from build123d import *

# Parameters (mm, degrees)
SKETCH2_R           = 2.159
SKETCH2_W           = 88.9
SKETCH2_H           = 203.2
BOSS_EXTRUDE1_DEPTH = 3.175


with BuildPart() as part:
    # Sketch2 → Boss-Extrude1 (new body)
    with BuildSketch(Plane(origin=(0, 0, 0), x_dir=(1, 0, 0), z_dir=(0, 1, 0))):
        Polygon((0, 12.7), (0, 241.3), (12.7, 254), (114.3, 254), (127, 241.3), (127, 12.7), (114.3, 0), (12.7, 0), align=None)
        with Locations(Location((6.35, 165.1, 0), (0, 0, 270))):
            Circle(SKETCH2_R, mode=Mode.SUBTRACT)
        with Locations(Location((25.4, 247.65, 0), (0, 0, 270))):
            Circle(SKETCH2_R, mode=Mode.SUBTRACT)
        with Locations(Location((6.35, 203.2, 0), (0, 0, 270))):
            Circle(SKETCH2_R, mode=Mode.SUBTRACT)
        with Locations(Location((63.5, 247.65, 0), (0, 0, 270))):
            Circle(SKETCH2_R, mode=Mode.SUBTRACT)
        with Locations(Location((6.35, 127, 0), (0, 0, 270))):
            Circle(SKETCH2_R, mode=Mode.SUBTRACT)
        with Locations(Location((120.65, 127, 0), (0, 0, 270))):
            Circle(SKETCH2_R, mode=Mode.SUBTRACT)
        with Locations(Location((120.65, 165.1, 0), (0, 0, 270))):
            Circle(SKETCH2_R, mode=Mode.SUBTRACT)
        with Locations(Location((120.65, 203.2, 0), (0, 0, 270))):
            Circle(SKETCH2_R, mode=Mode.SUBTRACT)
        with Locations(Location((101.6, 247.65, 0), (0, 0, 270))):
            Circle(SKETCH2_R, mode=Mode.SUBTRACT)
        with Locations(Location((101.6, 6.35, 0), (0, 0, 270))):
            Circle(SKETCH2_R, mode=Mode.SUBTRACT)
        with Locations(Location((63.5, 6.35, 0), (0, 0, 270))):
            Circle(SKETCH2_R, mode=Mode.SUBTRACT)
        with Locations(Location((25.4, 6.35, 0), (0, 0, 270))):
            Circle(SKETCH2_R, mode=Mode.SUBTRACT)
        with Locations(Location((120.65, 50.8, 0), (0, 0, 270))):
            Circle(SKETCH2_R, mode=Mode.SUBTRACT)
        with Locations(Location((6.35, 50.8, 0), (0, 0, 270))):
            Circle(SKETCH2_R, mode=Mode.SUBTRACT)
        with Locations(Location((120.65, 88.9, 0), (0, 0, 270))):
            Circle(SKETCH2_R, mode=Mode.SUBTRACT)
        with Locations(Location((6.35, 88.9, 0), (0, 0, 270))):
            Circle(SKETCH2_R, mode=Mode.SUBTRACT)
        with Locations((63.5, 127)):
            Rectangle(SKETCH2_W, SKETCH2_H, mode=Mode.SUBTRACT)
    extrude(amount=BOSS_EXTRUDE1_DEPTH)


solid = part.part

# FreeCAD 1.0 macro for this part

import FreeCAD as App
import Part
import Sketcher
from FreeCAD import Vector
Q = App.Units.Quantity


def add_polygon(sketch, points):
    """Adds a closed chain of lines whose ends are joined by coincident constraints."""
    first, n = sketch.GeometryCount, len(points)
    for a, b in zip(points, points[1:] + points[:1]):
        sketch.addGeometry(Part.LineSegment(App.Vector(*a, 0), App.Vector(*b, 0)), False)
    for i in range(n):
        sketch.addConstraint(Sketcher.Constraint("Coincident", first + i, 2, first + (i + 1) % n, 1))

doc = App.newDocument("Part")
body = doc.addObject("PartDesign::Body", "Body")

# Sketch on XZ plane
sketch1 = body.newObject("Sketcher::SketchObject", "Sketch")
sketch1.AttachmentSupport = (doc.getObject("XZ_Plane"), [""])
sketch1.MapMode = "FlatFace"
add_polygon(sketch1, [(0, -241.3), (0, -12.7), (12.7, 0), (114.3, 0), (127, -12.7), (127, -241.3), (114.3, -254), (12.7, -254)])  # lines 0-7
sketch1.addGeometry(Part.Circle(Vector(101.6, -6.35, 0), Vector(0, 0, 1), 2.159), False)  # 8
sketch1.addGeometry(Part.Circle(Vector(120.65, -50.8, 0), Vector(0, 0, 1), 2.159), False)  # 9
sketch1.addGeometry(Part.Circle(Vector(63.5, -6.35, 0), Vector(0, 0, 1), 2.159), False)  # 10
sketch1.addGeometry(Part.Circle(Vector(120.65, -88.9, 0), Vector(0, 0, 1), 2.159), False)  # 11
sketch1.addGeometry(Part.Circle(Vector(25.4, -6.35, 0), Vector(0, 0, 1), 2.159), False)  # 12
sketch1.addGeometry(Part.Circle(Vector(6.35, -50.8, 0), Vector(0, 0, 1), 2.159), False)  # 13
sketch1.addGeometry(Part.Circle(Vector(6.35, -88.9, 0), Vector(0, 0, 1), 2.159), False)  # 14
sketch1.addGeometry(Part.Circle(Vector(120.65, -127, 0), Vector(0, 0, 1), 2.159), False)  # 15
sketch1.addGeometry(Part.Circle(Vector(120.65, -165.1, 0), Vector(0, 0, 1), 2.159), False)  # 16
add_polygon(sketch1, [(19.05, -25.4), (19.05, -228.6), (107.95, -228.6), (107.95, -25.4)])  # lines 17-20
sketch1.addGeometry(Part.Circle(Vector(120.65, -203.2, 0), Vector(0, 0, 1), 2.159), False)  # 21
sketch1.addGeometry(Part.Circle(Vector(101.6, -247.65, 0), Vector(0, 0, 1), 2.159), False)  # 22
sketch1.addGeometry(Part.Circle(Vector(63.5, -247.65, 0), Vector(0, 0, 1), 2.159), False)  # 23
sketch1.addGeometry(Part.Circle(Vector(6.35, -127, 0), Vector(0, 0, 1), 2.159), False)  # 24
sketch1.addGeometry(Part.Circle(Vector(6.35, -165.1, 0), Vector(0, 0, 1), 2.159), False)  # 25
sketch1.addGeometry(Part.Circle(Vector(6.35, -203.2, 0), Vector(0, 0, 1), 2.159), False)  # 26
sketch1.addGeometry(Part.Circle(Vector(25.4, -247.65, 0), Vector(0, 0, 1), 2.159), False)  # 27
sketch1.addConstraint(Sketcher.Constraint("Vertical", 0))
sketch1.addConstraint(Sketcher.Constraint("Horizontal", 2))
sketch1.addConstraint(Sketcher.Constraint("Vertical", 4))
sketch1.addConstraint(Sketcher.Constraint("Horizontal", 6))
sketch1.addConstraint(Sketcher.Constraint("Vertical", 17))
sketch1.addConstraint(Sketcher.Constraint("Horizontal", 18))
sketch1.addConstraint(Sketcher.Constraint("Vertical", 19))
sketch1.addConstraint(Sketcher.Constraint("Horizontal", 20))
sketch1.addConstraint(Sketcher.Constraint("Equal", 8, 9))
sketch1.addConstraint(Sketcher.Constraint("Equal", 9, 10))
sketch1.addConstraint(Sketcher.Constraint("Equal", 10, 11))
sketch1.addConstraint(Sketcher.Constraint("Equal", 11, 12))
sketch1.addConstraint(Sketcher.Constraint("Equal", 12, 13))
sketch1.addConstraint(Sketcher.Constraint("Equal", 13, 14))
sketch1.addConstraint(Sketcher.Constraint("Equal", 14, 15))
sketch1.addConstraint(Sketcher.Constraint("Equal", 15, 16))
sketch1.addConstraint(Sketcher.Constraint("Equal", 16, 21))
sketch1.addConstraint(Sketcher.Constraint("Equal", 21, 22))
sketch1.addConstraint(Sketcher.Constraint("Equal", 22, 23))
sketch1.addConstraint(Sketcher.Constraint("Equal", 23, 24))
sketch1.addConstraint(Sketcher.Constraint("Equal", 24, 25))
sketch1.addConstraint(Sketcher.Constraint("Equal", 25, 26))
sketch1.addConstraint(Sketcher.Constraint("Equal", 26, 27))
sketch1.addConstraint(Sketcher.Constraint("PointOnObject", 0, 2, -2))
sketch1.addConstraint(Sketcher.Constraint("PointOnObject", 1, 2, -1))
sketch1.addConstraint(Sketcher.Constraint("Perpendicular", 1, 3))
sketch1.addConstraint(Sketcher.Constraint("Perpendicular", 3, 5))
sketch1.addConstraint(Sketcher.Constraint("Perpendicular", 5, 7))
sketch1.addConstraint(Sketcher.Constraint("Horizontal", 8, 3, 10, 3))
sketch1.addConstraint(Sketcher.Constraint("Horizontal", 10, 3, 12, 3))
sketch1.addConstraint(Sketcher.Constraint("Horizontal", 9, 3, 13, 3))
sketch1.addConstraint(Sketcher.Constraint("Horizontal", 11, 3, 14, 3))
sketch1.addConstraint(Sketcher.Constraint("Horizontal", 22, 3, 23, 3))
sketch1.addConstraint(Sketcher.Constraint("Horizontal", 15, 3, 24, 3))
sketch1.addConstraint(Sketcher.Constraint("Horizontal", 16, 3, 25, 3))
sketch1.addConstraint(Sketcher.Constraint("Horizontal", 21, 3, 26, 3))
sketch1.addConstraint(Sketcher.Constraint("Horizontal", 23, 3, 27, 3))
sketch1.addConstraint(Sketcher.Constraint("Horizontal", 0, 2, 3, 2))
sketch1.addConstraint(Sketcher.Constraint("Horizontal", 4, 2, 7, 2))
sketch1.addConstraint(Sketcher.Constraint("Vertical", 9, 3, 11, 3))
sketch1.addConstraint(Sketcher.Constraint("Vertical", 13, 3, 14, 3))
sketch1.addConstraint(Sketcher.Constraint("Vertical", 11, 3, 15, 3))
sketch1.addConstraint(Sketcher.Constraint("Vertical", 15, 3, 16, 3))
sketch1.addConstraint(Sketcher.Constraint("Vertical", 16, 3, 21, 3))
sketch1.addConstraint(Sketcher.Constraint("Vertical", 8, 3, 22, 3))
sketch1.addConstraint(Sketcher.Constraint("Vertical", 10, 3, 23, 3))
sketch1.addConstraint(Sketcher.Constraint("Vertical", 14, 3, 24, 3))
sketch1.addConstraint(Sketcher.Constraint("Vertical", 24, 3, 25, 3))
sketch1.addConstraint(Sketcher.Constraint("Vertical", 25, 3, 26, 3))
sketch1.addConstraint(Sketcher.Constraint("Vertical", 12, 3, 27, 3))
sketch1.addConstraint(Sketcher.Constraint("Vertical", 2, 2, 5, 2))
sketch1.addConstraint(Sketcher.Constraint("Vertical", 1, 2, 6, 2))
sketch1.addConstraint(Sketcher.Constraint("Diameter", 8, Q("0.17 in")))
sketch1.addConstraint(Sketcher.Constraint("DistanceX", 2, 1, 2, 2, Q("4 in")))
sketch1.addConstraint(Sketcher.Constraint("DistanceY", 0, 1, 0, 2, Q("9 in")))
sketch1.addConstraint(Sketcher.Constraint("DistanceY", 17, 2, 17, 1, Q("8 in")))
sketch1.addConstraint(Sketcher.Constraint("DistanceX", 18, 1, 18, 2, Q("3.5 in")))
sketch1.addConstraint(Sketcher.Constraint("DistanceX", -1, 1, 8, 3, Q("4 in")))
sketch1.addConstraint(Sketcher.Constraint("DistanceY", 9, 3, -1, 1, Q("2 in")))
sketch1.addConstraint(Sketcher.Constraint("DistanceX", -1, 1, 12, 3, Q("1 in")))
sketch1.addConstraint(Sketcher.Constraint("DistanceY", 15, 3, -1, 1, Q("5 in")))
sketch1.addConstraint(Sketcher.Constraint("DistanceY", 21, 3, -1, 1, Q("8 in")))
sketch1.addConstraint(Sketcher.Constraint("DistanceX", -1, 1, 3, 2, Q("5 in")))
sketch1.addConstraint(Sketcher.Constraint("DistanceY", 17, 2, -1, 1, Q("9 in")))
sketch1.addConstraint(Sketcher.Constraint("DistanceY", 16, 3, 11, 3, Q("3 in")))
sketch1.addConstraint(Sketcher.Constraint("DistanceY", 14, 3, 0, 2, Q("3 in")))
sketch1.addConstraint(Sketcher.Constraint("DistanceX", 1, 2, 10, 3, Q("2 in")))
sketch1.addConstraint(Sketcher.Constraint("DistanceX", 13, 3, 9, 3, Q("4.5 in")))
sketch1.addConstraint(Sketcher.Constraint("DistanceX", 26, 3, 17, 2, Q("0.5 in")))
sketch1.addConstraint(Sketcher.Constraint("DistanceY", 8, 3, -1, 1, Q("0.25 in")))
sketch1.addConstraint(Sketcher.Constraint("DistanceX", -1, 1, 9, 3, Q("4.75 in")))
sketch1.addConstraint(Sketcher.Constraint("DistanceY", 22, 3, -1, 1, Q("9.75 in")))
pad1 = body.newObject("PartDesign::Pad", "Pad")
pad1.Profile = sketch1
pad1.Length = Q("0.125 in")
pad1.Reversed = True

doc.recompute()
